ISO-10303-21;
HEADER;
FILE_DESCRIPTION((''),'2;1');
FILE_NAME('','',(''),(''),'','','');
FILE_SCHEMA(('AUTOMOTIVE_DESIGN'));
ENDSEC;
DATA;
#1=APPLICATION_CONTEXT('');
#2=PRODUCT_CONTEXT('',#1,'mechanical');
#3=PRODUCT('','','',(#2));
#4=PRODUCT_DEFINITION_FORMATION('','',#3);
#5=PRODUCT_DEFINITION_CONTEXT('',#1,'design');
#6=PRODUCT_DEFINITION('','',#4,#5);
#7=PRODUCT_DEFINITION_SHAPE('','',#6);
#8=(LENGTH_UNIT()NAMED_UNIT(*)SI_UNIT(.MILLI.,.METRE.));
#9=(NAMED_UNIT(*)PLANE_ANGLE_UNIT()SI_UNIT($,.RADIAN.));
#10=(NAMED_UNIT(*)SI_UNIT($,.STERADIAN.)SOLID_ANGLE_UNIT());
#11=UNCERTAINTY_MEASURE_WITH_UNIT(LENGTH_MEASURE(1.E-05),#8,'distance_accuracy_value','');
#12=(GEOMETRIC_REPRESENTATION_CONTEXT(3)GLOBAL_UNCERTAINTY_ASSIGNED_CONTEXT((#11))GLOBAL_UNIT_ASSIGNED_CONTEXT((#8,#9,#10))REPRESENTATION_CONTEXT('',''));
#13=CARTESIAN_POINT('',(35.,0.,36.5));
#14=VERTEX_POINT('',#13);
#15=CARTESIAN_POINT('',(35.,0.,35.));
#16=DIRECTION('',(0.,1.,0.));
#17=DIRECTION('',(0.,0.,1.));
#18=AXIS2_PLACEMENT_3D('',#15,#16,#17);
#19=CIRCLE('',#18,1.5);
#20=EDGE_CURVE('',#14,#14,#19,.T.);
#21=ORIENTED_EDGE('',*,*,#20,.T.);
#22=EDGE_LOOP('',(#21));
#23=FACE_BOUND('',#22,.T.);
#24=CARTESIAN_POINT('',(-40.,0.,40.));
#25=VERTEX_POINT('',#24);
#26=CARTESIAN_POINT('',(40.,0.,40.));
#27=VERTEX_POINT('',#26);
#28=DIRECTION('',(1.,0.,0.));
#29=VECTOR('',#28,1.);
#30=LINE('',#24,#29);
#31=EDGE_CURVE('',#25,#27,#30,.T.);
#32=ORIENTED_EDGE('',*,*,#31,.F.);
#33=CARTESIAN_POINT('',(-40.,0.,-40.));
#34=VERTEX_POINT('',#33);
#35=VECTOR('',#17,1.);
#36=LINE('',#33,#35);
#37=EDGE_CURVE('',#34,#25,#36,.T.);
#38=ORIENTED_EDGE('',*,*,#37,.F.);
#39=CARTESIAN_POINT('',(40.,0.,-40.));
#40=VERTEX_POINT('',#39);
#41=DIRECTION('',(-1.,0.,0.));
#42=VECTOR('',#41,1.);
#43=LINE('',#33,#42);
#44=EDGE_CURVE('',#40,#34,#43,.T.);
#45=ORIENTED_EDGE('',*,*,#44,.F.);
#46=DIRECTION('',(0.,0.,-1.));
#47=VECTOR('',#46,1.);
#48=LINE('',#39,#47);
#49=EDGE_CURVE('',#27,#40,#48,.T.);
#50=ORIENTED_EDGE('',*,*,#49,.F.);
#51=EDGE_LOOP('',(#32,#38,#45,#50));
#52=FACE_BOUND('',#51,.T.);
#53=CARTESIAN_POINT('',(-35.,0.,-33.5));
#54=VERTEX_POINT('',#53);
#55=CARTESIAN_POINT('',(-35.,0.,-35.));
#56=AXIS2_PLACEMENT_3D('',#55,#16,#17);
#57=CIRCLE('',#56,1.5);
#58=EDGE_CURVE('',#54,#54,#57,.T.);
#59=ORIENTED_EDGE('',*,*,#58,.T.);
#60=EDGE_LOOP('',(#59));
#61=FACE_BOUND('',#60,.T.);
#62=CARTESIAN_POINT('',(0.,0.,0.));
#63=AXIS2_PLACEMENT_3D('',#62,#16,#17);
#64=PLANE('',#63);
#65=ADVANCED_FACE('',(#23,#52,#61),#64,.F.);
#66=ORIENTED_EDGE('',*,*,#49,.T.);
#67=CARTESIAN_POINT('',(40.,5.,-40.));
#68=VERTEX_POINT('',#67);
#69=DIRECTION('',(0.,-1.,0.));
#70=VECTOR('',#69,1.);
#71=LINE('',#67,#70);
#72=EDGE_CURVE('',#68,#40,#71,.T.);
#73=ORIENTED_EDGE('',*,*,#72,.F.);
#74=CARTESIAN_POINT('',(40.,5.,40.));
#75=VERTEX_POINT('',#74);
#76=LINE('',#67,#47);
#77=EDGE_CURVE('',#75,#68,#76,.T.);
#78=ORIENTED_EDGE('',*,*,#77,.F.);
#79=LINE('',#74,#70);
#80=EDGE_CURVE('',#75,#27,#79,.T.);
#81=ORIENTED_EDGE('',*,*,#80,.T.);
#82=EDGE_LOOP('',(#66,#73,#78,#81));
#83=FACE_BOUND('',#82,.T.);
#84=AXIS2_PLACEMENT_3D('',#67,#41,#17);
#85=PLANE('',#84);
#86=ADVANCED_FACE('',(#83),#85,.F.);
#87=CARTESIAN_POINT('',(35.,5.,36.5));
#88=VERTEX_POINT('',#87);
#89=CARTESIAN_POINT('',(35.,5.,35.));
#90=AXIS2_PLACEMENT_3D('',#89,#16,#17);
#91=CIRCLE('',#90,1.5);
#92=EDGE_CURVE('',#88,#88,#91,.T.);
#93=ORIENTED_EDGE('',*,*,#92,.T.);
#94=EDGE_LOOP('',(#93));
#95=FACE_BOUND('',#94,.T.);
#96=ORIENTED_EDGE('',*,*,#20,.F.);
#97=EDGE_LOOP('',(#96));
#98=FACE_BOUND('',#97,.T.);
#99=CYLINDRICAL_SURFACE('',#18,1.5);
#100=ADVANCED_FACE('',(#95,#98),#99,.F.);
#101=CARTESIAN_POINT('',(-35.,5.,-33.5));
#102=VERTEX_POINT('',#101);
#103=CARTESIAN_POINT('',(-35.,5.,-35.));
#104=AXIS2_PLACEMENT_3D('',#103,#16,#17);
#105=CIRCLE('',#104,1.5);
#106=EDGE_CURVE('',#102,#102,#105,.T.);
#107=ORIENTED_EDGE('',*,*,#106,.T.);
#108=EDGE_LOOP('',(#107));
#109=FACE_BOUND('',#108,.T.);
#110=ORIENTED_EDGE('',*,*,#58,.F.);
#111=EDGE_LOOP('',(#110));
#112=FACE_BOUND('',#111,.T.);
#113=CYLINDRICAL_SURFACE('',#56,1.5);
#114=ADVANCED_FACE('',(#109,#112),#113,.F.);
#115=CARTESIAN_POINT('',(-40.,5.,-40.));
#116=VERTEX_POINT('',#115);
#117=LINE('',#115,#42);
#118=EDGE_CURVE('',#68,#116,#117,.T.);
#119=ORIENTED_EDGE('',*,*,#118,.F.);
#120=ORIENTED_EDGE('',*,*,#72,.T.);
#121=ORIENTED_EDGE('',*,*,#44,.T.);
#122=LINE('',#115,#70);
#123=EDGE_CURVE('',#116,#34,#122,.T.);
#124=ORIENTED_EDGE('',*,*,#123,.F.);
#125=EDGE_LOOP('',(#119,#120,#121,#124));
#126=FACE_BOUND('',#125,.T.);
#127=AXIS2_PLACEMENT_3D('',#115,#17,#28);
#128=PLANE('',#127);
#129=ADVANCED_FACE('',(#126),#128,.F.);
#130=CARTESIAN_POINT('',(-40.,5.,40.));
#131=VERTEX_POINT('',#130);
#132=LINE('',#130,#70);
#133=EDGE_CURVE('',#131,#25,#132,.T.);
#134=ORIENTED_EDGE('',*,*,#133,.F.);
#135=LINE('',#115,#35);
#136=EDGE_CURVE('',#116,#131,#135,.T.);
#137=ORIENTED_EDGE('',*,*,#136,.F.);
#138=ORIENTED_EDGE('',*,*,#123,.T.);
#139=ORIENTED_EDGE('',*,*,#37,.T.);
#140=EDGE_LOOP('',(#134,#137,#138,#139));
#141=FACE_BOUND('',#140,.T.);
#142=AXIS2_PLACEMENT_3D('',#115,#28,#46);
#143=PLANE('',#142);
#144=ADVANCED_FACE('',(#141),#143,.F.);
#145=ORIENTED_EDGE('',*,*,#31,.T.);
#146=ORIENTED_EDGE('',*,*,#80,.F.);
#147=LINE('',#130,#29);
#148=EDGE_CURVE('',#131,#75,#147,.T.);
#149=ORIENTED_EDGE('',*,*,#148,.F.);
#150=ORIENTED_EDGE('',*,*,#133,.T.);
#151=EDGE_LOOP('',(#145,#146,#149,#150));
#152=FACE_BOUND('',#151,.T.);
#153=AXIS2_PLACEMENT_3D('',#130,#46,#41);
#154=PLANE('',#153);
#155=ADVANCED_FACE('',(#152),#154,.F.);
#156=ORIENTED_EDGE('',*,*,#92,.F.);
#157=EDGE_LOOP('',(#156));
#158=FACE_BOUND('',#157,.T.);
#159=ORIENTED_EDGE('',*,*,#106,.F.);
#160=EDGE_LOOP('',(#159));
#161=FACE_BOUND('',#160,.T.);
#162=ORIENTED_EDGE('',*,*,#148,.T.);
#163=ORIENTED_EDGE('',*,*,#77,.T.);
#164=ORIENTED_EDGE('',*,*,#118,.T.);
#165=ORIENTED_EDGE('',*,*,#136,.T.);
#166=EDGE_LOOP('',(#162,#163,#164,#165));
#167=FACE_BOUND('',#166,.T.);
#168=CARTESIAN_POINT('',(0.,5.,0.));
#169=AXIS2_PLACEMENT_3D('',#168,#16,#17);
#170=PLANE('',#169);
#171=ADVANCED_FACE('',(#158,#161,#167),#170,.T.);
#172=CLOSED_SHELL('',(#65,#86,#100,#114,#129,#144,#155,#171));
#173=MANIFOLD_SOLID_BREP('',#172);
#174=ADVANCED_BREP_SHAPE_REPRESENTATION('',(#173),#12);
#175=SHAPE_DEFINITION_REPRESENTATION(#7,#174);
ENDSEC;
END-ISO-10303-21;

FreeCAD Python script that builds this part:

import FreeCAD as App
import Part
import Sketcher

V = App.Vector
Q = App.Units.Quantity

doc = App.newDocument("Part")
body = doc.addObject("PartDesign::Body", "Body")

# Sketch on XZ plane
sketch1 = body.newObject("Sketcher::SketchObject", "Sketch")
sketch1.AttachmentSupport = (doc.getObject("XZ_Plane"), [""])
sketch1.MapMode = "FlatFace"
sketch1.addGeometry([
    Part.LineSegment(V(-40, -40, 0), V(-40, 40, 0)),
    Part.LineSegment(V(-40, 40, 0), V(40, 40, 0)),
    Part.LineSegment(V(40, 40, 0), V(40, -40, 0)),
    Part.LineSegment(V(40, -40, 0), V(-40, -40, 0)),
], False)
sketch1.addConstraint([
    Sketcher.Constraint("Coincident", 0, 2, 1, 1),
    Sketcher.Constraint("Coincident", 1, 2, 2, 1),
    Sketcher.Constraint("Coincident", 2, 2, 3, 1),
    Sketcher.Constraint("Coincident", 3, 2, 0, 1),
    Sketcher.Constraint("Vertical", 0),
    Sketcher.Constraint("Horizontal", 1),
    Sketcher.Constraint("Vertical", 2),
    Sketcher.Constraint("Horizontal", 3),
    Sketcher.Constraint("Symmetric", 0, 2, 2, 2, -1, 1),
    Sketcher.Constraint("Equal", 3, 0),
    Sketcher.Constraint("DistanceX", 1, 1, 1, 2, Q("80 mm")),
])
pad1 = body.newObject("PartDesign::Pad", "Pad")
pad1.Profile = sketch1
pad1.Length = 5
pad1.Reversed = True

# Sketch on XZ plane
sketch2 = body.newObject("Sketcher::SketchObject", "Sketch001")
sketch2.AttachmentSupport = (doc.getObject("XZ_Plane"), [""])
sketch2.MapMode = "FlatFace"
sketch2.AttachmentOffset = App.Placement(V(0, 0, -5), App.Rotation())
sketch2.addGeometry([
    Part.Circle(V(-35, -35, 0), V(0, 0, 1), 1.5),
    Part.Circle(V(35, 35, 0), V(0, 0, 1), 1.5),
], False)
sketch2.addConstraint([
    Sketcher.Constraint("Equal", 0, 1),
    Sketcher.Constraint("Symmetric", 0, 3, 1, 3, -1, 1),
    Sketcher.Constraint("Diameter", 0, Q("3 mm")),
    Sketcher.Constraint("DistanceX", 0, 3, -1, 1, Q("35 mm")),
    Sketcher.Constraint("DistanceY", 0, 3, -1, 1, Q("35 mm")),
])
pocket1 = body.newObject("PartDesign::Pocket", "Pocket")
pocket1.Profile = sketch2
pocket1.Type = "ThroughAll"
pocket1.Reversed = True

doc.recompute()
